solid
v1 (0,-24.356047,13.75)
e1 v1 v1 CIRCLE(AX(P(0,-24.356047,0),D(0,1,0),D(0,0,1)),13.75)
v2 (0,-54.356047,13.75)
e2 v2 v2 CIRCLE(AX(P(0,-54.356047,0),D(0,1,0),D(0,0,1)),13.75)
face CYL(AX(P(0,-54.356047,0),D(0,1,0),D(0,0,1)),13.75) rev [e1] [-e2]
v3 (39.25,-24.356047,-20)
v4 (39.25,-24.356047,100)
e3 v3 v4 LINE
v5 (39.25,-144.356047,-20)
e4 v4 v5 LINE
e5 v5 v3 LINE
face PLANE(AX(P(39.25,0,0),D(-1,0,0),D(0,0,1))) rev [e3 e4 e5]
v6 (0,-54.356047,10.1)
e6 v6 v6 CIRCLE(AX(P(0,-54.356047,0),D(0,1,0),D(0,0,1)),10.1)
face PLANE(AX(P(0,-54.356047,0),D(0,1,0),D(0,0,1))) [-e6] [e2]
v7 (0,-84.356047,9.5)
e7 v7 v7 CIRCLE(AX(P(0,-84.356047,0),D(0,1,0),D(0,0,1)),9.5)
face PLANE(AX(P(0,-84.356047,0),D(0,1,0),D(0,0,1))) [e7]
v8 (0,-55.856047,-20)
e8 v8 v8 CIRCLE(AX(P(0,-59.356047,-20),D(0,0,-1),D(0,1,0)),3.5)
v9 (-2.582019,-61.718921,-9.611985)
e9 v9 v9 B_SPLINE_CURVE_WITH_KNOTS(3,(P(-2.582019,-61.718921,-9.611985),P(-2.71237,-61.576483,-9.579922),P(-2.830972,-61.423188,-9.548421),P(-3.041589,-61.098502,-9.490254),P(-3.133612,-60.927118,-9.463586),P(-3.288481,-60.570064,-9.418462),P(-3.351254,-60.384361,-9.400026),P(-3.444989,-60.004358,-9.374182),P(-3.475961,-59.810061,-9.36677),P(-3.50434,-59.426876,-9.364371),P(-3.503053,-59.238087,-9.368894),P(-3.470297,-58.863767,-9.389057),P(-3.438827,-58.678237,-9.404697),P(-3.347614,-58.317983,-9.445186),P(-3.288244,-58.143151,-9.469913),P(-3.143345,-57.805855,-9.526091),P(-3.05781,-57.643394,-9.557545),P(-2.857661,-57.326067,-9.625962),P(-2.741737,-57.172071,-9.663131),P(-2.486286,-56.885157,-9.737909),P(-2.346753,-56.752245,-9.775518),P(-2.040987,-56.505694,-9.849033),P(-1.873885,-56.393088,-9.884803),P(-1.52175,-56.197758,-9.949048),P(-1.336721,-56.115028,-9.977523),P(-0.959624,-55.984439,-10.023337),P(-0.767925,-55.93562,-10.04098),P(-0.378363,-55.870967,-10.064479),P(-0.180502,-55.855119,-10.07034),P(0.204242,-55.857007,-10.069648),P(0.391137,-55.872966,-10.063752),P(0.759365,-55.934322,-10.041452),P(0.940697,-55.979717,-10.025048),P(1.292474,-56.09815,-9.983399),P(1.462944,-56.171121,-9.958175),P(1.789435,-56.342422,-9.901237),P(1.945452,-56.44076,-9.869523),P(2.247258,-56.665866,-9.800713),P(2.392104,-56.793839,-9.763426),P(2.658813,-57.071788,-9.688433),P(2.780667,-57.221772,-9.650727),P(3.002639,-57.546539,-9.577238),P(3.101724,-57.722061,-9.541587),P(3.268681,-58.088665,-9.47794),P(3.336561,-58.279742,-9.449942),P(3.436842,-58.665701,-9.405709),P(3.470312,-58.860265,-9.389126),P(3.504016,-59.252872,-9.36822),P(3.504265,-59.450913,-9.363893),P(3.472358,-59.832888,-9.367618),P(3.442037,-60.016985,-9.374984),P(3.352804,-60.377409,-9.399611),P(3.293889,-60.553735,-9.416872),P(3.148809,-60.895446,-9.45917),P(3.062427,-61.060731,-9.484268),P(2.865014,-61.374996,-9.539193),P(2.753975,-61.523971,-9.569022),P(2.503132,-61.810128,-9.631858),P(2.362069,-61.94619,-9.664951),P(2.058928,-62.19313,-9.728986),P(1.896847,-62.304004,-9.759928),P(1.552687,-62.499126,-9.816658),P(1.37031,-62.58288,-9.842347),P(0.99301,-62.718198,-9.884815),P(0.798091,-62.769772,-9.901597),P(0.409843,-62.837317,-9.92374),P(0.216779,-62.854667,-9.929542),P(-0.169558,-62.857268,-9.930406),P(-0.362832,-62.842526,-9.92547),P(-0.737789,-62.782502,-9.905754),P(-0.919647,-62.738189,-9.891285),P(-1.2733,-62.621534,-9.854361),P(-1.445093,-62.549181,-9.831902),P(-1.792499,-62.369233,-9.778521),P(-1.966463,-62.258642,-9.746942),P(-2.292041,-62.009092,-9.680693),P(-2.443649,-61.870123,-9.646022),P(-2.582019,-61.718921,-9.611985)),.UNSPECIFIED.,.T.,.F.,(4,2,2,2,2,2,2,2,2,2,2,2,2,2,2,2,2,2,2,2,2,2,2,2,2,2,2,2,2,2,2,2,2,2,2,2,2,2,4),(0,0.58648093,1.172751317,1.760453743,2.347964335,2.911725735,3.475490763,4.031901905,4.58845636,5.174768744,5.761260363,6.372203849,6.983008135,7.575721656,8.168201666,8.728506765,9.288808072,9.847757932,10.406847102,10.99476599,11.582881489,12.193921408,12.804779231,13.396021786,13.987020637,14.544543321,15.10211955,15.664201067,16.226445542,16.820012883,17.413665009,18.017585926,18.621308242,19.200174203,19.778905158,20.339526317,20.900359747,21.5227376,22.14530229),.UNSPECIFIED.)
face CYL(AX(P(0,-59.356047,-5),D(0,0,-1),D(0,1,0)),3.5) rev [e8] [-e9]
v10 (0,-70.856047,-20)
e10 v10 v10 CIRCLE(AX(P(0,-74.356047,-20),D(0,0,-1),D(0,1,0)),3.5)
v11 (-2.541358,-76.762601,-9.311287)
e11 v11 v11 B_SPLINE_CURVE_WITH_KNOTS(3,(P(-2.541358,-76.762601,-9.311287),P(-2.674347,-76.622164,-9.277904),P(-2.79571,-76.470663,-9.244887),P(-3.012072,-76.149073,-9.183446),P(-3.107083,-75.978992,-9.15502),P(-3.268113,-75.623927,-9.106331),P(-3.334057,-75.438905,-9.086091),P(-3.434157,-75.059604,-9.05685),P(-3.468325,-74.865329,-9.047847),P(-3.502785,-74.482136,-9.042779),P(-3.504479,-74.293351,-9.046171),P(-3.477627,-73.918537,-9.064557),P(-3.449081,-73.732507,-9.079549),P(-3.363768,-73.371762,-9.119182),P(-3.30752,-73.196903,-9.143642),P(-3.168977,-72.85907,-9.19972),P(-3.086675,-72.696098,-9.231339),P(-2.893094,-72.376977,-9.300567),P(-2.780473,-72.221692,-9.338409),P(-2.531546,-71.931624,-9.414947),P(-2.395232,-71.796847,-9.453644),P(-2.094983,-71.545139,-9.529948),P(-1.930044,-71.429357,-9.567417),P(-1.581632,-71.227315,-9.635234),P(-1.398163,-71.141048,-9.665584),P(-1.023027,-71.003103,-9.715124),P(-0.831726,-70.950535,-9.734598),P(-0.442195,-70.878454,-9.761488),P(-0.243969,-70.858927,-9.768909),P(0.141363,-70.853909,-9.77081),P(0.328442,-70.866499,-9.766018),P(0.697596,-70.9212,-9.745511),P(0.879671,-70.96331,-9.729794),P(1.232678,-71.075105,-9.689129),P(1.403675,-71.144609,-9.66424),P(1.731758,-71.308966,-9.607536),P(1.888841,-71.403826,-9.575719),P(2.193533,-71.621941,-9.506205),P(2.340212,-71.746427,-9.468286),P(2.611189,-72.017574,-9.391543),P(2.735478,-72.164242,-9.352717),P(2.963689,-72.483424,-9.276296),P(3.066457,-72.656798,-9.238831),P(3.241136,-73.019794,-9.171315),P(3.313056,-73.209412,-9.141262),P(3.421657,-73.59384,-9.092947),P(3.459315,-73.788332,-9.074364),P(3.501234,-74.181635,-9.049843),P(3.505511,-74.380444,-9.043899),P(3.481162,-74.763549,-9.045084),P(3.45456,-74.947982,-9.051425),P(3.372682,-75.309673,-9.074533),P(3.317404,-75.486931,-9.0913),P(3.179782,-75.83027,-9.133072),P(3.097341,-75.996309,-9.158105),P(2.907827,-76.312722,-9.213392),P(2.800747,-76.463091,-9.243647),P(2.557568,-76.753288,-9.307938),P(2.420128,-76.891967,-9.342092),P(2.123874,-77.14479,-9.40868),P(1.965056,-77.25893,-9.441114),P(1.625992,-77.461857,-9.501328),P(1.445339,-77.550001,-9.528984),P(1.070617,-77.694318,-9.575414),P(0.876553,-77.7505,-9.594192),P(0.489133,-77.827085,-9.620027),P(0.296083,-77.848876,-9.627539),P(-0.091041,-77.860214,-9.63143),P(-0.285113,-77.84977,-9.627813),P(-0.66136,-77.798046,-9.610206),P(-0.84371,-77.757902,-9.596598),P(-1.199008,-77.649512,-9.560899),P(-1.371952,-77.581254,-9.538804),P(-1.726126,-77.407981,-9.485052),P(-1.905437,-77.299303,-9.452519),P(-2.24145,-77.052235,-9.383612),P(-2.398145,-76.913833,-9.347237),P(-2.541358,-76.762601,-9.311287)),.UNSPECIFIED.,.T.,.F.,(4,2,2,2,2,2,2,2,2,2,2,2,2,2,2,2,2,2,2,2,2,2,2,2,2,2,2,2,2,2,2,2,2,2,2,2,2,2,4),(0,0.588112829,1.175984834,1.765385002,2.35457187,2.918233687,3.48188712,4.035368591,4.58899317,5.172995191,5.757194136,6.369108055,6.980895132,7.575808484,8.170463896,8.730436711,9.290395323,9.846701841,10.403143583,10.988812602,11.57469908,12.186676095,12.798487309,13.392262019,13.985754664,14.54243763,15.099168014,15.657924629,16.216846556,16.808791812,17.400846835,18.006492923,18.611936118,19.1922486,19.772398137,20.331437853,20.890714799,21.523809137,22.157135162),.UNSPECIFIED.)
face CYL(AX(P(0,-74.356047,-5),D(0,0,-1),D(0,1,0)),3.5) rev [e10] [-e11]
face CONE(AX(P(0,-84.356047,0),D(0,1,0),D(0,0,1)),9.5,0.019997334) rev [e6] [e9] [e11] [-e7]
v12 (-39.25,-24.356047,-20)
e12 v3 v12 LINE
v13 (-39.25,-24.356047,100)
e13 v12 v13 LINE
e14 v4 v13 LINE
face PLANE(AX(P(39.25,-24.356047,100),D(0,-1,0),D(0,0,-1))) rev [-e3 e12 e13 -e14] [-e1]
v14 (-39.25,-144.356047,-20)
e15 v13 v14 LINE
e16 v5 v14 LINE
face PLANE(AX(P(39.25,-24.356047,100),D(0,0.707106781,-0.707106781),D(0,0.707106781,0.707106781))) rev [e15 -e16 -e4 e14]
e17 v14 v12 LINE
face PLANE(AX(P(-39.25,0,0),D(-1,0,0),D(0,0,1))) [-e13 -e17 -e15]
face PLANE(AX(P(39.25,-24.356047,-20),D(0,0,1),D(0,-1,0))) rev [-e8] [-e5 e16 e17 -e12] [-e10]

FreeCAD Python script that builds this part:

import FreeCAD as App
import Part
import Sketcher
Q = App.Units.Quantity


def add_polygon(sketch, points):
    """Adds a closed chain of lines whose ends are joined by coincident constraints."""
    first, n = sketch.GeometryCount, len(points)
    for a, b in zip(points, points[1:] + points[:1]):
        sketch.addGeometry(Part.LineSegment(App.Vector(*a, 0), App.Vector(*b, 0)), False)
    for i in range(n):
        sketch.addConstraint(Sketcher.Constraint("Coincident", first + i, 2, first + (i + 1) % n, 1))

doc = App.newDocument("Part")
body = doc.addObject("PartDesign::Body", "Body")

# Sketch on YZ plane
sketch1 = body.newObject("Sketcher::SketchObject", "Sketch")
sketch1.AttachmentSupport = (doc.getObject("YZ_Plane"), [""])
sketch1.MapMode = "FlatFace"
add_polygon(sketch1, [(-24.356047, 100), (-144.356047, -20), (-24.356047, -20)])  # lines 0-2
sketch1.addConstraint([
    Sketcher.Constraint("Horizontal", 1),
    Sketcher.Constraint("Vertical", 2),
    Sketcher.Constraint("Equal", 1, 2),
    Sketcher.Constraint("DistanceX", 1, 1, 1, 2, Q("120 mm")),
    Sketcher.Constraint("DistanceY", 0, 2, -1, 1, Q("20 mm")),
    Sketcher.Constraint("DistanceX", 0, 2, -1, 1, Q("144.356047 mm")),
])
pad1 = body.newObject("PartDesign::Pad", "Pad")
pad1.Profile = sketch1
pad1.Length = 78.5
pad1.Midplane = True

# Sketch on XZ plane
sketch2 = body.newObject("Sketcher::SketchObject", "Sketch001")
sketch2.AttachmentSupport = (doc.getObject("XZ_Plane"), [""])
sketch2.MapMode = "FlatFace"
sketch2.AttachmentOffset = App.Placement(App.Vector(0, 0, 24.356047), App.Rotation())
sketch2.addGeometry(Part.Circle(App.Vector(0, 0, 0), App.Vector(0, 0, 1), 13.75), False)
sketch2.addConstraint([
    Sketcher.Constraint("Coincident", 0, 3, -1, 1),
    Sketcher.Constraint("Diameter", 0, Q("27.5 mm")),
])
pocket1 = body.newObject("PartDesign::Pocket", "Pocket")
pocket1.Profile = sketch2
pocket1.Length = 30
pocket1.Reversed = True

# Sketch on XZ plane
sketch3 = body.newObject("Sketcher::SketchObject", "Sketch002")
sketch3.AttachmentSupport = (doc.getObject("XZ_Plane"), [""])
sketch3.MapMode = "FlatFace"
sketch3.AttachmentOffset = App.Placement(App.Vector(0, 0, 84.356047), App.Rotation())
sketch3.addGeometry(Part.Circle(App.Vector(0, 0, 0), App.Vector(0, 0, 1), 9.5), False)
sketch3.addConstraint([
    Sketcher.Constraint("Coincident", 0, 3, -1, 1),
    Sketcher.Constraint("Diameter", 0, Q("19 mm")),
])

# Sketch on XZ plane
sketch4 = body.newObject("Sketcher::SketchObject", "Sketch003")
sketch4.AttachmentSupport = (doc.getObject("XZ_Plane"), [""])
sketch4.MapMode = "FlatFace"
sketch4.AttachmentOffset = App.Placement(App.Vector(0, 0, 54.356047), App.Rotation())
sketch4.addGeometry(Part.Circle(App.Vector(0, 0, 0), App.Vector(0, 0, 1), 10.1), False)
sketch4.addConstraint([
    Sketcher.Constraint("Coincident", 0, 3, -1, 1),
    Sketcher.Constraint("Diameter", 0, Q("20.2 mm")),
])

subtractiveloft = body.newObject("PartDesign::SubtractiveLoft", "SubtractiveLoft")
subtractiveloft.Profile = sketch3
subtractiveloft.Sections = [sketch4]

# Sketch on XY plane
sketch5 = body.newObject("Sketcher::SketchObject", "Sketch004")
sketch5.AttachmentSupport = (doc.getObject("XY_Plane"), [""])
sketch5.MapMode = "FlatFace"
sketch5.AttachmentOffset = App.Placement(App.Vector(0, 0, -20), App.Rotation())
sketch5.addGeometry([
    Part.Circle(App.Vector(0, -59.356047, 0), App.Vector(0, 0, 1), 3.5),
    Part.Circle(App.Vector(0, -74.356047, 0), App.Vector(0, 0, 1), 3.5),
], False)
sketch5.addConstraint([
    Sketcher.Constraint("Equal", 0, 1),
    Sketcher.Constraint("PointOnObject", 0, 3, -2),
    Sketcher.Constraint("PointOnObject", 1, 3, -2),
    Sketcher.Constraint("Diameter", 0, Q("7 mm")),
    Sketcher.Constraint("DistanceY", 1, 3, 0, 3, Q("15 mm")),
    Sketcher.Constraint("DistanceY", 0, 3, -1, 1, Q("59.356047 mm")),
])
pocket2 = body.newObject("PartDesign::Pocket", "Pocket001")
pocket2.Profile = sketch5
pocket2.Length = 15
pocket2.Reversed = True

doc.recompute()
